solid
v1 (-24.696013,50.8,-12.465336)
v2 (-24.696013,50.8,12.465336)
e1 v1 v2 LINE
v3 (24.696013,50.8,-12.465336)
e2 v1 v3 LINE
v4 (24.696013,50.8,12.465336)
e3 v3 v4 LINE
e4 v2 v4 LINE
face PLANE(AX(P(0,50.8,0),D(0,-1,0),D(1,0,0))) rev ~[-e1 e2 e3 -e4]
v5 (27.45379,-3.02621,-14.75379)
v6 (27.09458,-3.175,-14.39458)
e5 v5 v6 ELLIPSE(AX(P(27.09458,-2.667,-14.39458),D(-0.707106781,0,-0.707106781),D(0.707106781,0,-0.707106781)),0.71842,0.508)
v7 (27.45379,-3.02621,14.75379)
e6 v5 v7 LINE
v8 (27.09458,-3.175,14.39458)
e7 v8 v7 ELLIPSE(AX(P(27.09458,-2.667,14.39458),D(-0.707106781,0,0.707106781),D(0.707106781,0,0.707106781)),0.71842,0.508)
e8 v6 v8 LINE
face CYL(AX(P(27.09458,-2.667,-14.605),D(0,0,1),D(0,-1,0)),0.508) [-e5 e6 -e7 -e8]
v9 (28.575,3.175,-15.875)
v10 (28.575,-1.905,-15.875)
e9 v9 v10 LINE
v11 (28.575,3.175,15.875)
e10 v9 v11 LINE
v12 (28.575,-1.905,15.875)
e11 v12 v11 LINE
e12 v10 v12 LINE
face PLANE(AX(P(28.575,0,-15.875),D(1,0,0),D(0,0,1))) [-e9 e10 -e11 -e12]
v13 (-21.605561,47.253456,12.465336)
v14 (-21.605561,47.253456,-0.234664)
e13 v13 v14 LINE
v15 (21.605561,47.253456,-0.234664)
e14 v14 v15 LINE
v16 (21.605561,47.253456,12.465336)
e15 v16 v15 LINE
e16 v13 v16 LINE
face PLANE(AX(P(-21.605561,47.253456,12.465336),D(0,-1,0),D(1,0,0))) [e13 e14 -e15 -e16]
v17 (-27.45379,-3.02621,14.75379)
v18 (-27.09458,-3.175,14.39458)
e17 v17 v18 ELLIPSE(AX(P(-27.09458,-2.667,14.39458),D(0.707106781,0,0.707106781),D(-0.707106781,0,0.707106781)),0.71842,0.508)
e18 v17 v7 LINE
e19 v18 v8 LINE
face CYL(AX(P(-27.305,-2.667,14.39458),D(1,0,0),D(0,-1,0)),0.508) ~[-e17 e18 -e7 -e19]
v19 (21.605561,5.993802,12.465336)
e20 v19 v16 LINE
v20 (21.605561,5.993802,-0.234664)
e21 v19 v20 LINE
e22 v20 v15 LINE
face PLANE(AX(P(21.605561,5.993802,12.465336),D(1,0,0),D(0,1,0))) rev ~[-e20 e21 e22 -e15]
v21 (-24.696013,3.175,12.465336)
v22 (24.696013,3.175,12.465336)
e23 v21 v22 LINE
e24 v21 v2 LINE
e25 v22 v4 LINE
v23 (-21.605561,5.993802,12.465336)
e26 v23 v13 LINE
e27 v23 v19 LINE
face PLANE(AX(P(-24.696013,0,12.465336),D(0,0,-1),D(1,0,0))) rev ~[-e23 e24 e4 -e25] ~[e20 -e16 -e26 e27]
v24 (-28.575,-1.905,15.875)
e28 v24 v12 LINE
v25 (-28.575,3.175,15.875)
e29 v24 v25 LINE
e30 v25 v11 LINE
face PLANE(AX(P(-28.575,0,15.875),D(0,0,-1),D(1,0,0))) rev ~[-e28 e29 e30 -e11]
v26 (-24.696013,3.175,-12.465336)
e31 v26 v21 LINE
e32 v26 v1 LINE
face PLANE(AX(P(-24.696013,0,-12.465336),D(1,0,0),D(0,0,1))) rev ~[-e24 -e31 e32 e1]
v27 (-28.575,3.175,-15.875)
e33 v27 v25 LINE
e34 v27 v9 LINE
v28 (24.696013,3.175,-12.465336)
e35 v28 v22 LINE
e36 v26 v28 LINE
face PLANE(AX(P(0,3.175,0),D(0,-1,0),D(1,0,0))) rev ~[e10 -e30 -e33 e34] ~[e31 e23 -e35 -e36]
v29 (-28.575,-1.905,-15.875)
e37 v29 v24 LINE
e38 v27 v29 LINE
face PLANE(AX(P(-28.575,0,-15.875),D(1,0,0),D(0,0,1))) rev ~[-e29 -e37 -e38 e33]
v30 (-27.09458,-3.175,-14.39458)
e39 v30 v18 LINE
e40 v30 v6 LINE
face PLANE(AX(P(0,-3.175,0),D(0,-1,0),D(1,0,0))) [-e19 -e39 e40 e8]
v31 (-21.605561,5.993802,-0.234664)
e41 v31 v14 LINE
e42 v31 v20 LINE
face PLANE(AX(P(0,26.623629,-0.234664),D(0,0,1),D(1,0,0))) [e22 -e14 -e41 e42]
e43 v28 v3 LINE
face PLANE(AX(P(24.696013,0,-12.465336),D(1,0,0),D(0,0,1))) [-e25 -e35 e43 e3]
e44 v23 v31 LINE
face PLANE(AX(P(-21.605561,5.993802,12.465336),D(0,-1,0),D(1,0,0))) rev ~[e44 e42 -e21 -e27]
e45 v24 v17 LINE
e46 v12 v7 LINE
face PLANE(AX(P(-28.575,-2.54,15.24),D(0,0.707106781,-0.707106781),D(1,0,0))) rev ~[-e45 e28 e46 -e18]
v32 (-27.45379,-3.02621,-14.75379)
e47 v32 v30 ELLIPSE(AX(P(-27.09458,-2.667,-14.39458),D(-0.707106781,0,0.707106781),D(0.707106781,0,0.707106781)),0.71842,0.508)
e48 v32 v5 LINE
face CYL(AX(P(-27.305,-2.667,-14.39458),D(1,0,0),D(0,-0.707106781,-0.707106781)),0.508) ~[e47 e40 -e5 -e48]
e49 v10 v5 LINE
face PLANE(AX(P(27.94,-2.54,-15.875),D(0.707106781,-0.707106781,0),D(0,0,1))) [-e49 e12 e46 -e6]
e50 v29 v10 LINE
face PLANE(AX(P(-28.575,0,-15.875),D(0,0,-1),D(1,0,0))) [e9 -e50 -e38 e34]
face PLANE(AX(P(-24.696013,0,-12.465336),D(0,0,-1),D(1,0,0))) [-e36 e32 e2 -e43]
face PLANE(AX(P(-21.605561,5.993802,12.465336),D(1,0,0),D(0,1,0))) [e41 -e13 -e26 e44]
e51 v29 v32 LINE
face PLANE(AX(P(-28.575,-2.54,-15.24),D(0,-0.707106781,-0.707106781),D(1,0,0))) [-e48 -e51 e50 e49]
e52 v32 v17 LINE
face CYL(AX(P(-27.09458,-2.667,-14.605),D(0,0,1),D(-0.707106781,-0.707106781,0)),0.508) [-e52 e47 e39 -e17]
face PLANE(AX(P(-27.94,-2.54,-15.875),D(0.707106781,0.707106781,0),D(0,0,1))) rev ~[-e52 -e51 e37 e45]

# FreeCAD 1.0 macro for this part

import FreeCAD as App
import Part
import Sketcher
Q = App.Units.Quantity


def edges_at(feature, points):
    """Names of the edges that pass closest to the given points."""
    edges = feature.Shape.Edges
    near = lambda p: min(range(len(edges)), key=lambda i: edges[i].distToShape(Part.Vertex(*p))[0])
    return sorted({f"Edge{near(p) + 1}" for p in points})


def add_polygon(sketch, points):
    """Adds a closed chain of lines whose ends are joined by coincident constraints."""
    first, n = sketch.GeometryCount, len(points)
    for a, b in zip(points, points[1:] + points[:1]):
        sketch.addGeometry(Part.LineSegment(App.Vector(*a, 0), App.Vector(*b, 0)), False)
    for i in range(n):
        sketch.addConstraint(Sketcher.Constraint("Coincident", first + i, 2, first + (i + 1) % n, 1))

doc = App.newDocument("Part")
body = doc.addObject("PartDesign::Body", "Body")

sketch1 = body.newObject("Sketcher::SketchObject", "Sketch")
sketch1.AttachmentSupport = (doc.getObject("XZ_Plane"), [""])
sketch1.MapMode = "FlatFace"
add_polygon(sketch1, [(-28.575, 15.875), (-28.575, -15.875), (28.575, -15.875), (28.575, 15.875)])
sketch1.addConstraint([
    Sketcher.Constraint("Vertical", 0),
    Sketcher.Constraint("Horizontal", 1),
    Sketcher.Constraint("Vertical", 2),
    Sketcher.Constraint("Horizontal", 3),
    Sketcher.Constraint("Symmetric", 0, 2, 2, 2, -1, 1),
    Sketcher.Constraint("DistanceX", 1, 1, 1, 2, Q("2.25 in")),
    Sketcher.Constraint("DistanceY", 0, 2, 0, 1, Q("1.25 in")),
])
pad1 = body.newObject("PartDesign::Pad", "Pad")
pad1.Profile = sketch1
pad1.Length = Q("0.25 in")
pad1.Midplane = True

sketch2 = body.newObject("Sketcher::SketchObject", "Sketch001")
sketch2.AttachmentSupport = (doc.getObject("XZ_Plane"), [""])
sketch2.MapMode = "FlatFace"
add_polygon(sketch2, [(-24.696013, 12.465336), (-24.696013, -12.465336), (24.696013, -12.465336), (24.696013, 12.465336)])
sketch2.addConstraint([
    Sketcher.Constraint("Vertical", 0),
    Sketcher.Constraint("Horizontal", 1),
    Sketcher.Constraint("Vertical", 2),
    Sketcher.Constraint("Horizontal", 3),
    Sketcher.Constraint("Symmetric", 0, 2, 2, 2, -1, 1),
    Sketcher.Constraint("DistanceX", 1, 1, 1, 2, 49.392026),
    Sketcher.Constraint("DistanceY", 0, 2, 0, 1, 24.930672),
])
pad2 = body.newObject("PartDesign::Pad", "Pad001")
pad2.Profile = sketch2
pad2.Length = Q("2 in")
pad2.Reversed = True

sketch3 = body.newObject("Sketcher::SketchObject", "Sketch002")
sketch3.AttachmentSupport = (doc.getObject("XY_Plane"), [""])
sketch3.MapMode = "FlatFace"
sketch3.AttachmentOffset = App.Placement(App.Vector(0, 0, 12.465336), App.Rotation())
add_polygon(sketch3, [(-21.605561, 47.253456), (-21.605561, 5.993802), (21.605561, 5.993802), (21.605561, 47.253456)])
sketch3.addConstraint([
    Sketcher.Constraint("Vertical", 0),
    Sketcher.Constraint("Horizontal", 1),
    Sketcher.Constraint("Vertical", 2),
    Sketcher.Constraint("Horizontal", 3),
    Sketcher.Constraint("DistanceY", -1, 1, 0, 2, 5.993802),
    Sketcher.Constraint("DistanceX", 1, 1, 1, 2, 43.211122),
    Sketcher.Constraint("DistanceY", 0, 2, 0, 1, 41.259654),
    Sketcher.Constraint("DistanceX", 0, 2, -1, 1, 21.605561),
])
pocket1 = body.newObject("PartDesign::Pocket", "Pocket")
pocket1.Profile = sketch3
pocket1.Length = Q("0.5 in")
doc.recompute()

chamfer = body.newObject("PartDesign::Chamfer", "Chamfer")
chamfer.Base = (pocket1, edges_at(pocket1, [
    (0, -3.175, -15.875),
    (-28.575, -3.175, 0),
    (28.575, -3.175, 0),
    (0, -3.175, 15.875),
]))
chamfer.Size = Q("0.05 in")
doc.recompute()

fillet = body.newObject("PartDesign::Fillet", "Fillet")
fillet.Base = (chamfer, edges_at(chamfer, [
    (0, -3.175, -14.605),
    (-27.305, -3.175, 0),
    (27.305, -3.175, 0),
    (0, -3.175, 14.605),
]))
fillet.Radius = Q("0.02 in")

doc.recompute()
